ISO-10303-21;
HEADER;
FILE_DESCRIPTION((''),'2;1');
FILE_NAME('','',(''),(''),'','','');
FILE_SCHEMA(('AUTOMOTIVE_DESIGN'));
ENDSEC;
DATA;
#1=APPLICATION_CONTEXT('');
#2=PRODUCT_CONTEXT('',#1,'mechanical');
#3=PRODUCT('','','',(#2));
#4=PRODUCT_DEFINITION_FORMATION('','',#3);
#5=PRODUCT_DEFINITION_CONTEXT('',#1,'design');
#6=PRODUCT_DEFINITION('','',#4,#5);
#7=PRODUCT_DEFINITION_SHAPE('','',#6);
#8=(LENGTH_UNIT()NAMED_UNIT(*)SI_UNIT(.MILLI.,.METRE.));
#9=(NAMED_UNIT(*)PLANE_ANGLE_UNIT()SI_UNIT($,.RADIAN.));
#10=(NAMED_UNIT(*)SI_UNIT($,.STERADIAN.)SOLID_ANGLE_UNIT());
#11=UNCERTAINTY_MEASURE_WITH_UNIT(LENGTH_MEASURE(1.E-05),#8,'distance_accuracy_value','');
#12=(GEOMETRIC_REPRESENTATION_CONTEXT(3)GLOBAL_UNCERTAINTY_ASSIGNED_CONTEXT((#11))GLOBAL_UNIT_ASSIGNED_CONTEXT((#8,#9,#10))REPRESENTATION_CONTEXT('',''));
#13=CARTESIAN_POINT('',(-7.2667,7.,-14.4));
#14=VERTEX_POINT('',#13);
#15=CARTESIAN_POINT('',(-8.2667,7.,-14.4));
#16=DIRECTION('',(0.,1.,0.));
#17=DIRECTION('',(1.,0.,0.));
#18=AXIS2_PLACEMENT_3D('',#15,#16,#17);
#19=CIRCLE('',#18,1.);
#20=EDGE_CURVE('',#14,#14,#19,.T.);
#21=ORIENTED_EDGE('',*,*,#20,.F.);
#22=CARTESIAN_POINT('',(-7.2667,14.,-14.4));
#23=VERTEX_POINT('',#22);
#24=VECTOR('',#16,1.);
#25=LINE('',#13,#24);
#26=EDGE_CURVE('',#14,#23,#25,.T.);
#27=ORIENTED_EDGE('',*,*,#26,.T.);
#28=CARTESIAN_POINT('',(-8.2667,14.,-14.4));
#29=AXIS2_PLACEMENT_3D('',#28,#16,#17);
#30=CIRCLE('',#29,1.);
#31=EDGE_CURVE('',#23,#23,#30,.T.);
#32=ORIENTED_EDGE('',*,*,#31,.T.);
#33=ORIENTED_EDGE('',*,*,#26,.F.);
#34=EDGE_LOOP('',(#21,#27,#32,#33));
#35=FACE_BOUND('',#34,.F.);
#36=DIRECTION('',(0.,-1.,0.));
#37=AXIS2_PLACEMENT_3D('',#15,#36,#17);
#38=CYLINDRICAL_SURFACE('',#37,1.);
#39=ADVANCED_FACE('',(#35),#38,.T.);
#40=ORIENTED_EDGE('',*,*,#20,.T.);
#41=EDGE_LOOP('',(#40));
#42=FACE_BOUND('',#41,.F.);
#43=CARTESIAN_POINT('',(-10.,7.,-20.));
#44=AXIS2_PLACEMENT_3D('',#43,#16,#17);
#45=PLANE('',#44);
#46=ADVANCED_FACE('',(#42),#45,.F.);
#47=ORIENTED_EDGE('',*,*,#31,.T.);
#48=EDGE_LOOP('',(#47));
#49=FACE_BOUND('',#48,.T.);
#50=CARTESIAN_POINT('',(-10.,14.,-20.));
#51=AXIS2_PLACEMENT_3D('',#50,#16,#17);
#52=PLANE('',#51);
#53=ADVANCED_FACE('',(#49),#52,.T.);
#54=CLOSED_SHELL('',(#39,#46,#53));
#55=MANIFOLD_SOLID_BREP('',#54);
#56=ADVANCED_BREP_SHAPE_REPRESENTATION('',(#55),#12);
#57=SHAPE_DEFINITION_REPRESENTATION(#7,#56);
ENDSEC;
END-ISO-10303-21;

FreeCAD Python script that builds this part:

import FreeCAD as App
import Part
import Sketcher

V = App.Vector
Q = App.Units.Quantity

doc = App.newDocument("Part")
body = doc.addObject("PartDesign::Body", "Body")

# Sketch on XZ plane
sketch1 = body.newObject("Sketcher::SketchObject", "Sketch")
sketch1.AttachmentSupport = (doc.getObject("XZ_Plane"), [""])
sketch1.MapMode = "FlatFace"
sketch1.AttachmentOffset = App.Placement(V(0, 0, -7), App.Rotation())
sketch1.addGeometry(Part.Circle(V(-8.2667, -14.4, 0), V(0, 0, 1), 1), False)
sketch1.addConstraint(Sketcher.Constraint("Diameter", 0, Q("2 mm")))
sketch1.addConstraint(Sketcher.Constraint("DistanceY", 0, 3, -1, 1, Q("14.4 mm")))
sketch1.addConstraint(Sketcher.Constraint("DistanceX", 0, 3, -1, 1, Q("8.2667 mm")))
pad1 = body.newObject("PartDesign::Pad", "Pad")
pad1.Profile = sketch1
pad1.Length = 7
pad1.Reversed = True

doc.recompute()
